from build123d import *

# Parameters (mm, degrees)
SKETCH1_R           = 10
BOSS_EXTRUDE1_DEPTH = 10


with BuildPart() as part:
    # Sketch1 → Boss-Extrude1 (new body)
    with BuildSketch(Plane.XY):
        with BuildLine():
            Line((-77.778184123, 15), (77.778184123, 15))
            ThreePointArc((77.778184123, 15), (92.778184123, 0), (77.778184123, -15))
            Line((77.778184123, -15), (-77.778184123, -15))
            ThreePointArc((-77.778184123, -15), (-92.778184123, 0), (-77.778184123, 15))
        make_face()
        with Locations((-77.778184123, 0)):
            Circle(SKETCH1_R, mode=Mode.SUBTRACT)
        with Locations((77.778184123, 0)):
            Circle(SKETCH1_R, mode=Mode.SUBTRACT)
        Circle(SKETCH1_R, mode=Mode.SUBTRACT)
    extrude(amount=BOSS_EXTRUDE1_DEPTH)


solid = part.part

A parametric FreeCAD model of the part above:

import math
import FreeCAD as App
import Part
import Sketcher

V = App.Vector
Q = App.Units.Quantity

doc = App.newDocument("Part")
params = doc.addObject("Spreadsheet::Sheet", "Params")
for row, (alias, value) in enumerate([
    ("sketch1_diameter", "20 mm"),
    ("sketch1_radius", "15 mm"),
    ("pad1_length", "10 mm"),
], start=1):
    params.set(f"A{row}", alias)
    params.set(f"B{row}", "=" + value)
    params.setAlias(f"B{row}", alias)

body = doc.addObject("PartDesign::Body", "Body")

sketch1 = body.newObject("Sketcher::SketchObject", "Sketch")
sketch1.AttachmentSupport = (doc.getObject("XY_Plane"), [""])
sketch1.MapMode = "FlatFace"
sketch1.addGeometry([
    Part.LineSegment(V(78, 15, 0), V(-78, 15, 0)),
    Part.ArcOfCircle(Part.Circle(V(-78, 0, 0), V(0, 0, 1), 15), math.radians(90), math.radians(270)),
    Part.LineSegment(V(-78, -15, 0), V(78, -15, 0)),
    Part.ArcOfCircle(Part.Circle(V(78, 0, 0), V(0, 0, 1), 15), math.radians(-90), math.radians(90)),
    Part.Circle(V(78, 0, 0), V(0, 0, 1), 10),
    Part.Circle(V(0, 0, 0), V(0, 0, 1), 10),
    Part.Circle(V(-78, 0, 0), V(0, 0, 1), 10),
], False)
sketch1.addConstraint([
    Sketcher.Constraint("Tangent", 0, 2, 1, 1),
    Sketcher.Constraint("Tangent", 1, 2, 2, 1),
    Sketcher.Constraint("Tangent", 2, 2, 3, 1),
    Sketcher.Constraint("Tangent", 3, 2, 0, 1),
    Sketcher.Constraint("Horizontal", 0),
    Sketcher.Constraint("Horizontal", 2),
    Sketcher.Constraint("Coincident", 5, 3, -1, 1),
    Sketcher.Constraint("Coincident", 4, 3, 3, 3),
    Sketcher.Constraint("Coincident", 6, 3, 1, 3),
    Sketcher.Constraint("Equal", 4, 5),
    Sketcher.Constraint("Equal", 5, 6),
    Sketcher.Constraint("Symmetric", 1, 3, 3, 3, -1, 1),
    Sketcher.Constraint("Diameter", 4, Q("20 mm")),
    Sketcher.Constraint("Radius", 1, Q("15 mm")),
    Sketcher.Constraint("DistanceX", 0, 2, 0, 1, Q("155.556368 mm")),
])
sketch1.setExpression("Constraints[12]", "Params.sketch1_diameter")
sketch1.setExpression("Constraints[13]", "Params.sketch1_radius")
pad1 = body.newObject("PartDesign::Pad", "Pad")
pad1.Profile = sketch1
pad1.setExpression("Length", "Params.pad1_length")

doc.recompute()
